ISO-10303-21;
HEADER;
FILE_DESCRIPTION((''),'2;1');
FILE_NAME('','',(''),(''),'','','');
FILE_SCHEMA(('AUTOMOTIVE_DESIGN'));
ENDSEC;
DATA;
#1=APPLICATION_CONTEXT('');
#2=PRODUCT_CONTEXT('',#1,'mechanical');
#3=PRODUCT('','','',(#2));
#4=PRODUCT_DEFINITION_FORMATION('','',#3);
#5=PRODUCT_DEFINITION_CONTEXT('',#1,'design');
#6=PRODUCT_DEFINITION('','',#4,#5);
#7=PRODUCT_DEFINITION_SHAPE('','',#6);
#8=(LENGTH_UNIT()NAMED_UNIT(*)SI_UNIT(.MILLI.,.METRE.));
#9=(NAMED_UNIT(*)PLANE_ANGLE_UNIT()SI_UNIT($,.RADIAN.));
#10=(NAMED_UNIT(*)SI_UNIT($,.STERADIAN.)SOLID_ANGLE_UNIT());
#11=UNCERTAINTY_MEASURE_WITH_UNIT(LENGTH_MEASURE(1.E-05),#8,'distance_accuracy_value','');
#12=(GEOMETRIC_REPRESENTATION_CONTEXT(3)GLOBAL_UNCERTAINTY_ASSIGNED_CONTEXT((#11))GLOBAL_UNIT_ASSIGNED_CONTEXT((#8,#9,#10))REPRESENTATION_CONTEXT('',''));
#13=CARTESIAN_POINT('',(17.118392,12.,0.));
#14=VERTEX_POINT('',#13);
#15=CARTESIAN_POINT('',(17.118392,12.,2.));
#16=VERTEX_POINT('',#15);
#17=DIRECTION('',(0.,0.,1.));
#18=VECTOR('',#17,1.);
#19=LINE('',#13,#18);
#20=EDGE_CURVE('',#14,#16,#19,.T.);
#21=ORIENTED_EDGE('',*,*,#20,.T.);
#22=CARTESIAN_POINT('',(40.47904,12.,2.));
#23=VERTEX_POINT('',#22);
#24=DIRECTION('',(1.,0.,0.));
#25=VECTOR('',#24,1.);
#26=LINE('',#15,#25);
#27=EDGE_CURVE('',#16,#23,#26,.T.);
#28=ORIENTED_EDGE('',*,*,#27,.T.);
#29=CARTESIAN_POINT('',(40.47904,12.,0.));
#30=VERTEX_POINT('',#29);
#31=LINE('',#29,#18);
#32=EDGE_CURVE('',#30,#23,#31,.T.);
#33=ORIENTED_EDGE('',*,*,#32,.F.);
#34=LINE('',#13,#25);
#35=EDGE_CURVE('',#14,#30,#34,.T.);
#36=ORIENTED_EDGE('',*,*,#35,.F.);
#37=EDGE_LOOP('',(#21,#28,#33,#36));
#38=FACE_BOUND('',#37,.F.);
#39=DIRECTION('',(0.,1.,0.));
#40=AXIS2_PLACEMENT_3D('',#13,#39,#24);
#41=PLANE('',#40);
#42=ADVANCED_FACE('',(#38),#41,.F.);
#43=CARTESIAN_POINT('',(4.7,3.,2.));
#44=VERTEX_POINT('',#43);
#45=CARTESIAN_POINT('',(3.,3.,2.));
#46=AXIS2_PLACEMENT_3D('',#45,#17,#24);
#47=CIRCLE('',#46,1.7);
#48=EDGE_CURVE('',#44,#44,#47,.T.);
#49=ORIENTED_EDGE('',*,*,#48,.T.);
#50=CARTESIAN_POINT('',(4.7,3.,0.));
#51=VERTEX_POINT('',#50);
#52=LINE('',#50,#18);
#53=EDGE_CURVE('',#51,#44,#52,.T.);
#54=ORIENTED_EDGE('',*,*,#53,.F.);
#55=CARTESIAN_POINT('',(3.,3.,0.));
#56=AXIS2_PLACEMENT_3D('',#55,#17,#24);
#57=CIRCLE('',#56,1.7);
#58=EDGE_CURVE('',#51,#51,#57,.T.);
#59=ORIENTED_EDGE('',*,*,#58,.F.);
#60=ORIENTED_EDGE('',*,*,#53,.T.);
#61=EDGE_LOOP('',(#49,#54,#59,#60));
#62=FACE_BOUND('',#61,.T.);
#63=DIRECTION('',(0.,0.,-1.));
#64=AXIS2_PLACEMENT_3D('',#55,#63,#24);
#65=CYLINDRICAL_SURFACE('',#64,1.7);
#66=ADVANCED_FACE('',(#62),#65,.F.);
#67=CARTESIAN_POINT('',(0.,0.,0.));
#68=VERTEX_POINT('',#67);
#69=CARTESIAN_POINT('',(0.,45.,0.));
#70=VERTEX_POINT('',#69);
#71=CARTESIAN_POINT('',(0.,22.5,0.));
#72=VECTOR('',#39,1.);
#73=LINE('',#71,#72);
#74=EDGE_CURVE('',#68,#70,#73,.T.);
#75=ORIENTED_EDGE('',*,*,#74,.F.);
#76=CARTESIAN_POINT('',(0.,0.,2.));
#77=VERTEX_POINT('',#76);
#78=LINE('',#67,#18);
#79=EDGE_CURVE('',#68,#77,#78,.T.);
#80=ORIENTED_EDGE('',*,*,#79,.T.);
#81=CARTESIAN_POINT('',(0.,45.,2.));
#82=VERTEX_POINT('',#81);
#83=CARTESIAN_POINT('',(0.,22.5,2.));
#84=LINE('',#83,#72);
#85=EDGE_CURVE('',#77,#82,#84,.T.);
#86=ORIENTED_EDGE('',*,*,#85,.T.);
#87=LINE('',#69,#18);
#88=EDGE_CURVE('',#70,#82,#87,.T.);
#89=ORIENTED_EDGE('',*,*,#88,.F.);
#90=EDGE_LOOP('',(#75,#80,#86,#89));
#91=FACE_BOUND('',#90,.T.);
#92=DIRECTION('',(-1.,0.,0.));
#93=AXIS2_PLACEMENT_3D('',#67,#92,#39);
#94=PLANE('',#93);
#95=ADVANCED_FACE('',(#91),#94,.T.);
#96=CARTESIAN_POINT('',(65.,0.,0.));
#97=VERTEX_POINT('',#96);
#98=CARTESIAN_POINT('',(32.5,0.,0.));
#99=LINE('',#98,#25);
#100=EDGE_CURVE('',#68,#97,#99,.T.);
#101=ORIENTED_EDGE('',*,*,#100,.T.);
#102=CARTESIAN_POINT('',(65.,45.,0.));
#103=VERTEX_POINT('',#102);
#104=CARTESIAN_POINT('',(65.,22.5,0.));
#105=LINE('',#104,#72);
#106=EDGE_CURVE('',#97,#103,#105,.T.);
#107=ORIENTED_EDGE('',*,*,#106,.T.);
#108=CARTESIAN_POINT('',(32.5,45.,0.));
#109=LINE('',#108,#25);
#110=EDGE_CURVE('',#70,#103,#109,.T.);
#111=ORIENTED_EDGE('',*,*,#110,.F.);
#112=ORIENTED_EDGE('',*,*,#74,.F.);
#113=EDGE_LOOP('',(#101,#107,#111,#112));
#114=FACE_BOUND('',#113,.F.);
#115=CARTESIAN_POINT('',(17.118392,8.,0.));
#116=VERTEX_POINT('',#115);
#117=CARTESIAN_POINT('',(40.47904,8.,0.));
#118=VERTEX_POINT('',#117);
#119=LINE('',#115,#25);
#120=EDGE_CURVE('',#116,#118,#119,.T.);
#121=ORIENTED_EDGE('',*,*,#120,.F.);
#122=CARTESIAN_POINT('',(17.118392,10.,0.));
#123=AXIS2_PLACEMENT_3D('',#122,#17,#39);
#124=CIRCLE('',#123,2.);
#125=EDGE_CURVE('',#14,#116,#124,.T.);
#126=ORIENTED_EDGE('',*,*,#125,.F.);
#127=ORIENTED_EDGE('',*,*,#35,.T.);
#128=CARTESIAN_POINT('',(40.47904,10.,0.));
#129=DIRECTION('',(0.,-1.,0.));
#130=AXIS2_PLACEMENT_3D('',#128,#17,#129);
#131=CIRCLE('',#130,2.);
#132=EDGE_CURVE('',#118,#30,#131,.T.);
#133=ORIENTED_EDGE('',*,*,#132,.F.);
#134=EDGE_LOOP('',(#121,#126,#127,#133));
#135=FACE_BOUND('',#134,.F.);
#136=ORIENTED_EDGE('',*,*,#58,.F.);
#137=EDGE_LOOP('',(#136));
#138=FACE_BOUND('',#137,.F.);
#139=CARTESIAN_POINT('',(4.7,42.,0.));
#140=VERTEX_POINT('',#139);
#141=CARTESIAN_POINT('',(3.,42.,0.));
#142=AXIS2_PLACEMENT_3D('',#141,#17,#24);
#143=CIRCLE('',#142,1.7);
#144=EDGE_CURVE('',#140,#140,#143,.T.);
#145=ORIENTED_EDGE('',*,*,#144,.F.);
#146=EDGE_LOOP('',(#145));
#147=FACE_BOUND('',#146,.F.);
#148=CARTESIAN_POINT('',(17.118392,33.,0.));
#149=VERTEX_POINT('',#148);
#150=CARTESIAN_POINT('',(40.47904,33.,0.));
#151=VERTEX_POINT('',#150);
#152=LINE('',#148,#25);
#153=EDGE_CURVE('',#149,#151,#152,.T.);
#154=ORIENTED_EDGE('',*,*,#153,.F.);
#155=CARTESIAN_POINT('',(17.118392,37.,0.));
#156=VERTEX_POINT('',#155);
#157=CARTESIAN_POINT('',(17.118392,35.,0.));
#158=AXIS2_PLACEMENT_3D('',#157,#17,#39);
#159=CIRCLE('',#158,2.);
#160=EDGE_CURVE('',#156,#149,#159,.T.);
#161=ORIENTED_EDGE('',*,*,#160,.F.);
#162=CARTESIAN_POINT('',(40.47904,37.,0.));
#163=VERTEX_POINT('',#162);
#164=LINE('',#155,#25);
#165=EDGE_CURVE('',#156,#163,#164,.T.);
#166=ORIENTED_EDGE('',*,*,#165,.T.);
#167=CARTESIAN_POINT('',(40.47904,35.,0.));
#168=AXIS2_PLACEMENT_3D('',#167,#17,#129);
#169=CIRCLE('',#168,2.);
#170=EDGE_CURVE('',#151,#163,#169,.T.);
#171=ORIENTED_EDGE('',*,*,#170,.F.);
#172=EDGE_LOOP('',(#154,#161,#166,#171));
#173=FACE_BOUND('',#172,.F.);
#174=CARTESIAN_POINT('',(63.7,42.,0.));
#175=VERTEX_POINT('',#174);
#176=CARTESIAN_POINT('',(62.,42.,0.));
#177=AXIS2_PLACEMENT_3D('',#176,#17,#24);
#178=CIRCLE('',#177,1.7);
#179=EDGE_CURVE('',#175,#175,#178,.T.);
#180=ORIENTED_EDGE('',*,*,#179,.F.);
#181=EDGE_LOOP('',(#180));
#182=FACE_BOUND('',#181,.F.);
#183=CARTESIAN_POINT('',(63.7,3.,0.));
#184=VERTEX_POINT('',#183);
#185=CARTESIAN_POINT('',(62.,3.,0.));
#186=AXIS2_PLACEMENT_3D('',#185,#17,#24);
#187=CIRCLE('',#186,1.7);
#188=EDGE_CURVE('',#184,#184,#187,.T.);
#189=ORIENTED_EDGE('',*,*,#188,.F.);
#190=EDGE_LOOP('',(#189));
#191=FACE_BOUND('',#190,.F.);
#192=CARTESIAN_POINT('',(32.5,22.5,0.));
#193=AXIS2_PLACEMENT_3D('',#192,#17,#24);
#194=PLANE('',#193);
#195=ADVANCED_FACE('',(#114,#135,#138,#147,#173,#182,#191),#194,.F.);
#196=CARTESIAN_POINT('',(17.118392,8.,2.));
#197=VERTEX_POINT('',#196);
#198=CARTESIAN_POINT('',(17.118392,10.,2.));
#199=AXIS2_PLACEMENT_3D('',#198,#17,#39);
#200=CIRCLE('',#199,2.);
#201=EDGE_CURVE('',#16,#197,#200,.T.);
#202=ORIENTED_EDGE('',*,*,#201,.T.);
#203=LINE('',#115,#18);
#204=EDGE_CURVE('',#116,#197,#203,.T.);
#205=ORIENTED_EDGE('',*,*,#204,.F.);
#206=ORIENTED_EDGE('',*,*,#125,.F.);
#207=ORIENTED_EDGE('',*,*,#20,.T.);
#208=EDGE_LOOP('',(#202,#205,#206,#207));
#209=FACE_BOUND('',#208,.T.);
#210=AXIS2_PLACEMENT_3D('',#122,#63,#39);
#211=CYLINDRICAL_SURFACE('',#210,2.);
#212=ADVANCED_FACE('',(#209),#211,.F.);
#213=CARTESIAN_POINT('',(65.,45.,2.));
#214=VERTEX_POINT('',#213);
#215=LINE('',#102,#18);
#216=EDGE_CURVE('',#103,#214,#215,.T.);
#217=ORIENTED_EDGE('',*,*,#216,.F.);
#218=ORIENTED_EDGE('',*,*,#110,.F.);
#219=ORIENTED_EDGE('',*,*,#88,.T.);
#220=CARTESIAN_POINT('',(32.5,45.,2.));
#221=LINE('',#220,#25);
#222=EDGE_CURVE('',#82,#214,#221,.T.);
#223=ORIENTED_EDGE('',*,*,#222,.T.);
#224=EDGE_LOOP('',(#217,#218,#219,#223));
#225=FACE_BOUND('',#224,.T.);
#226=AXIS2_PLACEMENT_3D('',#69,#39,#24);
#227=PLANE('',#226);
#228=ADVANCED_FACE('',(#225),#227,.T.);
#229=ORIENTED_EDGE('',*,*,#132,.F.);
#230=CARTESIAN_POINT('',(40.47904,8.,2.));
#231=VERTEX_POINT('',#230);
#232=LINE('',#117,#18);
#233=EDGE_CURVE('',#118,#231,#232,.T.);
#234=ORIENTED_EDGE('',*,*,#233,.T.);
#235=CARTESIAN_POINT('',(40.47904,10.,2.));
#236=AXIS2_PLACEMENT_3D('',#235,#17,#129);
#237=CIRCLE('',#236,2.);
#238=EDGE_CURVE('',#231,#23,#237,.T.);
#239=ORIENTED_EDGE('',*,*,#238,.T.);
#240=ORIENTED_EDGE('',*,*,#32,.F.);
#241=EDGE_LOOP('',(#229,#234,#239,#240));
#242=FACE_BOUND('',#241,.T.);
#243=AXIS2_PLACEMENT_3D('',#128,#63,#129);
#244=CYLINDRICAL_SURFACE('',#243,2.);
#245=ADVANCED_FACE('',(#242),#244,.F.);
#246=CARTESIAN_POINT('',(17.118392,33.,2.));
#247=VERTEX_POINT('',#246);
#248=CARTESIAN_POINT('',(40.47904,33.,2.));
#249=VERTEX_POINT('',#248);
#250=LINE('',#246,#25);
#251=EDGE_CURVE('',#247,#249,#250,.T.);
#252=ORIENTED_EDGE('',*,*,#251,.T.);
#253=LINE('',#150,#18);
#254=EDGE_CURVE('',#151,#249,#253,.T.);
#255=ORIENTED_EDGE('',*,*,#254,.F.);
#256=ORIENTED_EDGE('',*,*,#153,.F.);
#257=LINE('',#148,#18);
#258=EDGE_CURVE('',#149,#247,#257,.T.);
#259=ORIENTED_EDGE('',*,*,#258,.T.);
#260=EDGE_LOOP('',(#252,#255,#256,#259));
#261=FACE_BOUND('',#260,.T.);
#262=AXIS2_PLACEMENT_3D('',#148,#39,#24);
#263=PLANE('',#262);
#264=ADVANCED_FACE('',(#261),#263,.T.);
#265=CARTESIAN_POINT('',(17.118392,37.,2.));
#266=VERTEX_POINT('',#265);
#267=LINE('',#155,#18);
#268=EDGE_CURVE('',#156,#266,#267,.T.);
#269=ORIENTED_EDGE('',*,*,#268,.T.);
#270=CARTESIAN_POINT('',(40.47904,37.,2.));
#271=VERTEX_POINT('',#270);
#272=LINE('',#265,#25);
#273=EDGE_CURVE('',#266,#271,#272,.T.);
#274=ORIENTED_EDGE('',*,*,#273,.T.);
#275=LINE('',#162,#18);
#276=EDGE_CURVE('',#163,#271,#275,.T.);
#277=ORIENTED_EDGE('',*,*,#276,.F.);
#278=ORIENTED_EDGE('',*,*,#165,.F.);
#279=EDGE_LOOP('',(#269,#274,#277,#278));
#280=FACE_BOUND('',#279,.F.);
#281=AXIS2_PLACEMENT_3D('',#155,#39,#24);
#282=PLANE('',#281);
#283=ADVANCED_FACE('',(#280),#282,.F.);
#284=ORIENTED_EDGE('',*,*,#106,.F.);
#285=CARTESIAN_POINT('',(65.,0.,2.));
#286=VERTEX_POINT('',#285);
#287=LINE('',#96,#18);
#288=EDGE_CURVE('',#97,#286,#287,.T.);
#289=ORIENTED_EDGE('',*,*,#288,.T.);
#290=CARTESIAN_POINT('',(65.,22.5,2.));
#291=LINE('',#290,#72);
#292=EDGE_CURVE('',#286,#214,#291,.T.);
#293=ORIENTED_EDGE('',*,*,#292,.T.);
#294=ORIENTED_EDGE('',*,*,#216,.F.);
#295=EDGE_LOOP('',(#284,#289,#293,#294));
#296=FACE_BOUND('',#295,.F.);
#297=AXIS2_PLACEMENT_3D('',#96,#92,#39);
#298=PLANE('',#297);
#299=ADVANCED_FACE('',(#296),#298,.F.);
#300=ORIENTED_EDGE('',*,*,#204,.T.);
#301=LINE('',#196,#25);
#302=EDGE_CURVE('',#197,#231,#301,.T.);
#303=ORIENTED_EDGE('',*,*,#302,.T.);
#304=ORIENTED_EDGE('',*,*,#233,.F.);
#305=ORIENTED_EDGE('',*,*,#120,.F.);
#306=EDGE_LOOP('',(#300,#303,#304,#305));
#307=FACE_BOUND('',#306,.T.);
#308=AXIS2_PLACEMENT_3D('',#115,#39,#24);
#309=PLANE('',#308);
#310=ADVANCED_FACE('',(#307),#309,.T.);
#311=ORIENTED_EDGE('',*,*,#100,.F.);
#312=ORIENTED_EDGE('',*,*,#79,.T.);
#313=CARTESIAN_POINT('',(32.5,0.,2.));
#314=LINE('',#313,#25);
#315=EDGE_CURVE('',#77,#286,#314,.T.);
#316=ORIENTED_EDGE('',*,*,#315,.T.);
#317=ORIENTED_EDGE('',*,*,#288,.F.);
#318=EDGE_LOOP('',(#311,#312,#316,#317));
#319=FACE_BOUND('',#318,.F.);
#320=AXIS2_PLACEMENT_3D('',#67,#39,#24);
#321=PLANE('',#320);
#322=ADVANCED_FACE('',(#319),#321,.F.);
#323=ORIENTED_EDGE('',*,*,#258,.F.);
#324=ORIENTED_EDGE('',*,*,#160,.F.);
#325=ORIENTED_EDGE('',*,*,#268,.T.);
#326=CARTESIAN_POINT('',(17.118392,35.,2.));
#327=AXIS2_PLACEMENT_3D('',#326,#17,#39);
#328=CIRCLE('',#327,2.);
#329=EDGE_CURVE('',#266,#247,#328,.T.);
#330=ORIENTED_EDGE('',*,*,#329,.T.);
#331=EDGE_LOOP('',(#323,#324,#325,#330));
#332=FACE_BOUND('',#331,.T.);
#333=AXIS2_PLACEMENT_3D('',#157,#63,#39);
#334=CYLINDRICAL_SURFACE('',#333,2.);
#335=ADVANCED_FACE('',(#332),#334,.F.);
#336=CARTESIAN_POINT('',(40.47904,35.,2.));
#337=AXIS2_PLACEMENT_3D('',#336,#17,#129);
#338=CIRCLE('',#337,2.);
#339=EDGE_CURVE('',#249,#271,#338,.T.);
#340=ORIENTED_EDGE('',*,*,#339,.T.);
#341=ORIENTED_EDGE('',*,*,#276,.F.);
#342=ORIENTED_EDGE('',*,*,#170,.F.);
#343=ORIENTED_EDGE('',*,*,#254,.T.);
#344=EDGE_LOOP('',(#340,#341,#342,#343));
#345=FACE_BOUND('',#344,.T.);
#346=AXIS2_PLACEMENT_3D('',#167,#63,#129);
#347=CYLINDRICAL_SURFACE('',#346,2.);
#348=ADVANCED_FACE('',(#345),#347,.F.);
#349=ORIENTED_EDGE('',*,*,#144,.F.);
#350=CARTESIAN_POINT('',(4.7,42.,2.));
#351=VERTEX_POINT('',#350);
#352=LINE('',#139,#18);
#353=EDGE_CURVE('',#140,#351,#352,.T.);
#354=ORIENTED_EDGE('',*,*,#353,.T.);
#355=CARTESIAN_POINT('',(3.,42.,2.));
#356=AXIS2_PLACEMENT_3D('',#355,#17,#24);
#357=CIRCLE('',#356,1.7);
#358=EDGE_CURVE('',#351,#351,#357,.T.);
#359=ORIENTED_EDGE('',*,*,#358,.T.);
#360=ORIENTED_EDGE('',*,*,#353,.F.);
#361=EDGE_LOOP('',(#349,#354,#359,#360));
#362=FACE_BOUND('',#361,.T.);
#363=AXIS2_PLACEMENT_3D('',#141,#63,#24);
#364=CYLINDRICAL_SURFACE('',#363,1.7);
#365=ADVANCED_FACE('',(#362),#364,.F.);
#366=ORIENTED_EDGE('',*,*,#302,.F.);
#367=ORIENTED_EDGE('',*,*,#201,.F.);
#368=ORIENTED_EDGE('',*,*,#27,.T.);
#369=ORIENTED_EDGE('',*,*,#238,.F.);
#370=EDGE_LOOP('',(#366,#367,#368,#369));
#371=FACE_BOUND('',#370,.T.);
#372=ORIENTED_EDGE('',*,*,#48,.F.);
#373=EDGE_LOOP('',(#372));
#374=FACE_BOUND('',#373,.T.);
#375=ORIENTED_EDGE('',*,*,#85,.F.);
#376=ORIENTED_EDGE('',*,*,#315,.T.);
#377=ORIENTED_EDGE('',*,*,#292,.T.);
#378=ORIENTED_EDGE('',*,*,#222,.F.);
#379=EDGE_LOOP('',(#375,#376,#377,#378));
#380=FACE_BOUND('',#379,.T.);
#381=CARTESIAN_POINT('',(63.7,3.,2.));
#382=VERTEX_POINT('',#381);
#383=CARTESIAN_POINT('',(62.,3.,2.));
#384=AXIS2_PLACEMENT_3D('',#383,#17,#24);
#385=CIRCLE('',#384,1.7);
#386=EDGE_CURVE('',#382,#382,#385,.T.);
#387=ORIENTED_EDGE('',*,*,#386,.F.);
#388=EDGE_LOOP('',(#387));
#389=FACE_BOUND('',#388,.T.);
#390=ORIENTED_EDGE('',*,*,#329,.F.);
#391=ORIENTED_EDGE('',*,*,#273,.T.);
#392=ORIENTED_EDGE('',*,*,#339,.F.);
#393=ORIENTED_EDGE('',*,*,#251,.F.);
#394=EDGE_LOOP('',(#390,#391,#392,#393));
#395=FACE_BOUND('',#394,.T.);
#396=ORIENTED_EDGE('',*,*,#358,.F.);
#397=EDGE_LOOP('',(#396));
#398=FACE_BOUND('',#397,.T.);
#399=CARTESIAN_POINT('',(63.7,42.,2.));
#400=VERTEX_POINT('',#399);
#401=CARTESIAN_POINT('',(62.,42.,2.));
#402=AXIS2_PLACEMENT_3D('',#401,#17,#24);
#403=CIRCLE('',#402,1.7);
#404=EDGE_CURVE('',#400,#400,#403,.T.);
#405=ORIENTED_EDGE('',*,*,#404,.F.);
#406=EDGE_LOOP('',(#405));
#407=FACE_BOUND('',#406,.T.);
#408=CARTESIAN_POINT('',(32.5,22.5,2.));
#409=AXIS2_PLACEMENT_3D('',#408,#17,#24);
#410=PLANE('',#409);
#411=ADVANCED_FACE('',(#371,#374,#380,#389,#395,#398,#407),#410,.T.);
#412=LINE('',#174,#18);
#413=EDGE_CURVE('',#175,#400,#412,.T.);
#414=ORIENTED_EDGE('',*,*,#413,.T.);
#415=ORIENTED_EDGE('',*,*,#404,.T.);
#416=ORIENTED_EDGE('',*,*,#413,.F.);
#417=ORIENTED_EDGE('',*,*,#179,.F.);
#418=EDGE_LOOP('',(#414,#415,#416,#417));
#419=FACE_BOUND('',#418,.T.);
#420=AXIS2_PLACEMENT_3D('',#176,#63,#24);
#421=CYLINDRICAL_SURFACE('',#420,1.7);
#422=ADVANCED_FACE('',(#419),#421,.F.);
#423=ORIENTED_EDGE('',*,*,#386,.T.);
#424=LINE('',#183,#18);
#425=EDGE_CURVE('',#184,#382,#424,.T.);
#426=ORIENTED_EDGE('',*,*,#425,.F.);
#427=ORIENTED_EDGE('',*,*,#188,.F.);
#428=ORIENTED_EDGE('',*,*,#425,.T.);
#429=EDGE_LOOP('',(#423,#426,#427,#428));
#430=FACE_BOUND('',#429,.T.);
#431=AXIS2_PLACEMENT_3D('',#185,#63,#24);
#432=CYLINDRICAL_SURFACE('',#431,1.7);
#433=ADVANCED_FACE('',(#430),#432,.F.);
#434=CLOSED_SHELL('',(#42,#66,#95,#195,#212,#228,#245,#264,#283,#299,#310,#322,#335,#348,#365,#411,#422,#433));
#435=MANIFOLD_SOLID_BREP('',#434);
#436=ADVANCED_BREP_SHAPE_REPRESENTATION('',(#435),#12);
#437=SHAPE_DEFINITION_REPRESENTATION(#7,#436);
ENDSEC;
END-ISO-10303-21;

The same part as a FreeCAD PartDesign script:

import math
import FreeCAD as App
import Part
import Sketcher

V = App.Vector

doc = App.newDocument("Part")
body = doc.addObject("PartDesign::Body", "Body")

sketch1 = body.newObject("Sketcher::SketchObject", "Sketch")
sketch1.AttachmentSupport = (doc.getObject("XY_Plane"), [""])
sketch1.MapMode = "FlatFace"
sketch1.addGeometry(Part.LineSegment(V(0, 45, 0), V(0, 0, 0)), False)
sketch1.addGeometry(Part.LineSegment(V(0, 0, 0), V(65, 0, 0)), False)
sketch1.addGeometry(Part.LineSegment(V(65, 0, 0), V(65, 45, 0)), False)
sketch1.addGeometry(Part.LineSegment(V(65, 45, 0), V(0, 45, 0)), False)
sketch1.addGeometry(Part.Circle(V(3, 3, 0), V(0, 0, 1), 1.7), False)
sketch1.addGeometry(Part.ArcOfCircle(Part.Circle(V(17.1, 10, 0), V(0, 0, 1), 2), math.radians(90), math.radians(270)), False)
sketch1.addGeometry(Part.LineSegment(V(17.1, 12, 0), V(40.5, 12, 0)), False)
sketch1.addGeometry(Part.ArcOfCircle(Part.Circle(V(40.5, 10, 0), V(0, 0, 1), 2), math.radians(-90), math.radians(90)), False)
sketch1.addGeometry(Part.LineSegment(V(40.5, 8, 0), V(17.1, 8, 0)), False)
sketch1.addGeometry(Part.Circle(V(62, 3, 0), V(0, 0, 1), 1.7), False)
sketch1.addGeometry(Part.Circle(V(3, 42, 0), V(0, 0, 1), 1.7), False)
sketch1.addGeometry(Part.ArcOfCircle(Part.Circle(V(17.1, 35, 0), V(0, 0, 1), 2), math.radians(90), math.radians(270)), False)
sketch1.addGeometry(Part.LineSegment(V(17.1, 37, 0), V(40.5, 37, 0)), False)
sketch1.addGeometry(Part.ArcOfCircle(Part.Circle(V(40.5, 35, 0), V(0, 0, 1), 2), math.radians(-90), math.radians(90)), False)
sketch1.addGeometry(Part.LineSegment(V(40.5, 33, 0), V(17.1, 33, 0)), False)
sketch1.addGeometry(Part.Circle(V(62, 42, 0), V(0, 0, 1), 1.7), False)
sketch1.addConstraint(Sketcher.Constraint("Coincident", 0, 2, 1, 1))
sketch1.addConstraint(Sketcher.Constraint("Coincident", 1, 2, 2, 1))
sketch1.addConstraint(Sketcher.Constraint("Coincident", 2, 2, 3, 1))
sketch1.addConstraint(Sketcher.Constraint("Coincident", 3, 2, 0, 1))
sketch1.addConstraint(Sketcher.Constraint("Tangent", 5, 1, 6, 1))
sketch1.addConstraint(Sketcher.Constraint("Tangent", 6, 2, 7, 2))
sketch1.addConstraint(Sketcher.Constraint("Tangent", 7, 1, 8, 1))
sketch1.addConstraint(Sketcher.Constraint("Tangent", 8, 2, 5, 2))
sketch1.addConstraint(Sketcher.Constraint("Tangent", 11, 1, 12, 1))
sketch1.addConstraint(Sketcher.Constraint("Tangent", 12, 2, 13, 2))
sketch1.addConstraint(Sketcher.Constraint("Tangent", 13, 1, 14, 1))
sketch1.addConstraint(Sketcher.Constraint("Tangent", 14, 2, 11, 2))
sketch1.addConstraint(Sketcher.Constraint("Vertical", 0))
sketch1.addConstraint(Sketcher.Constraint("Horizontal", 1))
sketch1.addConstraint(Sketcher.Constraint("Vertical", 2))
sketch1.addConstraint(Sketcher.Constraint("Horizontal", 3))
sketch1.addConstraint(Sketcher.Constraint("Horizontal", 6))
sketch1.addConstraint(Sketcher.Constraint("Horizontal", 8))
sketch1.addConstraint(Sketcher.Constraint("Horizontal", 12))
sketch1.addConstraint(Sketcher.Constraint("Horizontal", 14))
sketch1.addConstraint(Sketcher.Constraint("Coincident", 0, 2, -1, 1))
sketch1.addConstraint(Sketcher.Constraint("Equal", 4, 9))
sketch1.addConstraint(Sketcher.Constraint("Equal", 9, 10))
sketch1.addConstraint(Sketcher.Constraint("Equal", 7, 11))
sketch1.addConstraint(Sketcher.Constraint("Equal", 10, 15))
sketch1.addConstraint(Sketcher.Constraint("Horizontal", 4, 3, 9, 3))
sketch1.addConstraint(Sketcher.Constraint("Horizontal", 10, 3, 15, 3))
sketch1.addConstraint(Sketcher.Constraint("Vertical", 4, 3, 10, 3))
sketch1.addConstraint(Sketcher.Constraint("Vertical", 5, 3, 11, 3))
sketch1.addConstraint(Sketcher.Constraint("Vertical", 7, 3, 13, 3))
sketch1.addConstraint(Sketcher.Constraint("Vertical", 9, 3, 15, 3))
sketch1.addConstraint(Sketcher.Constraint("Radius", 5, 2.0))
sketch1.addConstraint(Sketcher.Constraint("Diameter", 4, 3.4))
sketch1.addConstraint(Sketcher.Constraint("DistanceX", 1, 1, 1, 2, 65.0))
sketch1.addConstraint(Sketcher.Constraint("DistanceY", 0, 2, 0, 1, 45.0))
sketch1.addConstraint(Sketcher.Constraint("DistanceX", -1, 1, 4, 3, 3.0))
sketch1.addConstraint(Sketcher.Constraint("DistanceY", -1, 1, 4, 3, 3.0))
sketch1.addConstraint(Sketcher.Constraint("DistanceY", -1, 1, 5, 3, 10.0))
sketch1.addConstraint(Sketcher.Constraint("DistanceX", -1, 1, 9, 3, 62.0))
sketch1.addConstraint(Sketcher.Constraint("DistanceY", -1, 1, 10, 3, 42.0))
sketch1.addConstraint(Sketcher.Constraint("DistanceY", -1, 1, 11, 3, 35.0))
sketch1.addConstraint(Sketcher.Constraint("DistanceX", 6, 1, 6, 2, 23.360648))
sketch1.addConstraint(Sketcher.Constraint("DistanceX", -1, 1, 5, 3, 17.118392))
pad1 = body.newObject("PartDesign::Pad", "Pad")
pad1.Profile = sketch1
pad1.Length = 2

doc.recompute()
